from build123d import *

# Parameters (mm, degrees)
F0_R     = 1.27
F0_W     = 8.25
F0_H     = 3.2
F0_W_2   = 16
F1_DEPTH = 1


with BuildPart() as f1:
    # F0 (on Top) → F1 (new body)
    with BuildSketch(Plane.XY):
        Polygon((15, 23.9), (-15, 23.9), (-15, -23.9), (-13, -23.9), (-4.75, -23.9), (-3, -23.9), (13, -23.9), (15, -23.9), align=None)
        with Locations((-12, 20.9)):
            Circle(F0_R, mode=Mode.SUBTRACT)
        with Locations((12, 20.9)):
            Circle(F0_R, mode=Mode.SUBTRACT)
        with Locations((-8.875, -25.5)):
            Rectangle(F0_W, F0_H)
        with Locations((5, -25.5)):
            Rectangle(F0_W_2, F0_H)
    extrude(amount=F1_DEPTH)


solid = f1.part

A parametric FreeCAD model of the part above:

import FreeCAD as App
import Part
import Sketcher
from FreeCAD import Vector
Q = App.Units.Quantity


def add_polygon(sketch, points):
    """Adds a closed chain of lines whose ends are joined by coincident constraints."""
    first, n = sketch.GeometryCount, len(points)
    for a, b in zip(points, points[1:] + points[:1]):
        sketch.addGeometry(Part.LineSegment(App.Vector(*a, 0), App.Vector(*b, 0)), False)
    for i in range(n):
        sketch.addConstraint(Sketcher.Constraint("Coincident", first + i, 2, first + (i + 1) % n, 1))

doc = App.newDocument("Part")
body = doc.addObject("PartDesign::Body", "Body")

# Sketch on XY plane
sketch1 = body.newObject("Sketcher::SketchObject", "Sketch")
sketch1.AttachmentSupport = (doc.getObject("XY_Plane"), [""])
sketch1.MapMode = "FlatFace"
add_polygon(sketch1, [(15, 23.9), (-15, 23.9), (-15, -23.9), (-13, -23.9), (-13, -27.1), (-4.75, -27.1), (-4.75, -23.9), (-3, -23.9), (-3, -27.1), (13, -27.1), (13, -23.9), (15, -23.9)])  # lines 0-11
sketch1.addGeometry(Part.Circle(Vector(-12, 20.9, 0), Vector(0, 0, 1), 1.27), False)  # 12
sketch1.addGeometry(Part.Circle(Vector(12, 20.9, 0), Vector(0, 0, 1), 1.27), False)  # 13
sketch1.addConstraint(Sketcher.Constraint("Horizontal", 0))
sketch1.addConstraint(Sketcher.Constraint("Vertical", 1))
sketch1.addConstraint(Sketcher.Constraint("Horizontal", 2))
sketch1.addConstraint(Sketcher.Constraint("Vertical", 3))
sketch1.addConstraint(Sketcher.Constraint("Horizontal", 4))
sketch1.addConstraint(Sketcher.Constraint("Vertical", 5))
sketch1.addConstraint(Sketcher.Constraint("Horizontal", 6))
sketch1.addConstraint(Sketcher.Constraint("Vertical", 7))
sketch1.addConstraint(Sketcher.Constraint("Horizontal", 8))
sketch1.addConstraint(Sketcher.Constraint("Vertical", 9))
sketch1.addConstraint(Sketcher.Constraint("Horizontal", 10))
sketch1.addConstraint(Sketcher.Constraint("Vertical", 11))
sketch1.addConstraint(Sketcher.Constraint("Equal", 12, 13))
sketch1.addConstraint(Sketcher.Constraint("Symmetric", 0, 2, 10, 2, -1, 1))
sketch1.addConstraint(Sketcher.Constraint("Symmetric", 12, 3, 13, 3, -2))
sketch1.addConstraint(Sketcher.Constraint("Symmetric", 3, 2, 8, 2, -2))
sketch1.addConstraint(Sketcher.Constraint("Horizontal", 2, 2, 5, 2))
sketch1.addConstraint(Sketcher.Constraint("Horizontal", 6, 2, 9, 2))
sketch1.addConstraint(Sketcher.Constraint("Diameter", 12, Q("2.54 mm")))
sketch1.addConstraint(Sketcher.Constraint("DistanceX", 0, 2, 0, 1, Q("30 mm")))
sketch1.addConstraint(Sketcher.Constraint("DistanceX", 2, 1, 2, 2, Q("2 mm")))
sketch1.addConstraint(Sketcher.Constraint("DistanceX", 8, 1, 8, 2, Q("16 mm")))
sketch1.addConstraint(Sketcher.Constraint("DistanceY", 1, 2, 1, 1, Q("47.8 mm")))
sketch1.addConstraint(Sketcher.Constraint("DistanceY", 3, 2, 3, 1, Q("3.2 mm")))
sketch1.addConstraint(Sketcher.Constraint("DistanceX", 12, 3, -1, 1, Q("12 mm")))
sketch1.addConstraint(Sketcher.Constraint("DistanceY", 12, 3, 0, 2, Q("3 mm")))
sketch1.addConstraint(Sketcher.Constraint("DistanceX", 4, 1, 4, 2, Q("8.25 mm")))
pad1 = body.newObject("PartDesign::Pad", "Pad")
pad1.Profile = sketch1
pad1.Length = 1

doc.recompute()
